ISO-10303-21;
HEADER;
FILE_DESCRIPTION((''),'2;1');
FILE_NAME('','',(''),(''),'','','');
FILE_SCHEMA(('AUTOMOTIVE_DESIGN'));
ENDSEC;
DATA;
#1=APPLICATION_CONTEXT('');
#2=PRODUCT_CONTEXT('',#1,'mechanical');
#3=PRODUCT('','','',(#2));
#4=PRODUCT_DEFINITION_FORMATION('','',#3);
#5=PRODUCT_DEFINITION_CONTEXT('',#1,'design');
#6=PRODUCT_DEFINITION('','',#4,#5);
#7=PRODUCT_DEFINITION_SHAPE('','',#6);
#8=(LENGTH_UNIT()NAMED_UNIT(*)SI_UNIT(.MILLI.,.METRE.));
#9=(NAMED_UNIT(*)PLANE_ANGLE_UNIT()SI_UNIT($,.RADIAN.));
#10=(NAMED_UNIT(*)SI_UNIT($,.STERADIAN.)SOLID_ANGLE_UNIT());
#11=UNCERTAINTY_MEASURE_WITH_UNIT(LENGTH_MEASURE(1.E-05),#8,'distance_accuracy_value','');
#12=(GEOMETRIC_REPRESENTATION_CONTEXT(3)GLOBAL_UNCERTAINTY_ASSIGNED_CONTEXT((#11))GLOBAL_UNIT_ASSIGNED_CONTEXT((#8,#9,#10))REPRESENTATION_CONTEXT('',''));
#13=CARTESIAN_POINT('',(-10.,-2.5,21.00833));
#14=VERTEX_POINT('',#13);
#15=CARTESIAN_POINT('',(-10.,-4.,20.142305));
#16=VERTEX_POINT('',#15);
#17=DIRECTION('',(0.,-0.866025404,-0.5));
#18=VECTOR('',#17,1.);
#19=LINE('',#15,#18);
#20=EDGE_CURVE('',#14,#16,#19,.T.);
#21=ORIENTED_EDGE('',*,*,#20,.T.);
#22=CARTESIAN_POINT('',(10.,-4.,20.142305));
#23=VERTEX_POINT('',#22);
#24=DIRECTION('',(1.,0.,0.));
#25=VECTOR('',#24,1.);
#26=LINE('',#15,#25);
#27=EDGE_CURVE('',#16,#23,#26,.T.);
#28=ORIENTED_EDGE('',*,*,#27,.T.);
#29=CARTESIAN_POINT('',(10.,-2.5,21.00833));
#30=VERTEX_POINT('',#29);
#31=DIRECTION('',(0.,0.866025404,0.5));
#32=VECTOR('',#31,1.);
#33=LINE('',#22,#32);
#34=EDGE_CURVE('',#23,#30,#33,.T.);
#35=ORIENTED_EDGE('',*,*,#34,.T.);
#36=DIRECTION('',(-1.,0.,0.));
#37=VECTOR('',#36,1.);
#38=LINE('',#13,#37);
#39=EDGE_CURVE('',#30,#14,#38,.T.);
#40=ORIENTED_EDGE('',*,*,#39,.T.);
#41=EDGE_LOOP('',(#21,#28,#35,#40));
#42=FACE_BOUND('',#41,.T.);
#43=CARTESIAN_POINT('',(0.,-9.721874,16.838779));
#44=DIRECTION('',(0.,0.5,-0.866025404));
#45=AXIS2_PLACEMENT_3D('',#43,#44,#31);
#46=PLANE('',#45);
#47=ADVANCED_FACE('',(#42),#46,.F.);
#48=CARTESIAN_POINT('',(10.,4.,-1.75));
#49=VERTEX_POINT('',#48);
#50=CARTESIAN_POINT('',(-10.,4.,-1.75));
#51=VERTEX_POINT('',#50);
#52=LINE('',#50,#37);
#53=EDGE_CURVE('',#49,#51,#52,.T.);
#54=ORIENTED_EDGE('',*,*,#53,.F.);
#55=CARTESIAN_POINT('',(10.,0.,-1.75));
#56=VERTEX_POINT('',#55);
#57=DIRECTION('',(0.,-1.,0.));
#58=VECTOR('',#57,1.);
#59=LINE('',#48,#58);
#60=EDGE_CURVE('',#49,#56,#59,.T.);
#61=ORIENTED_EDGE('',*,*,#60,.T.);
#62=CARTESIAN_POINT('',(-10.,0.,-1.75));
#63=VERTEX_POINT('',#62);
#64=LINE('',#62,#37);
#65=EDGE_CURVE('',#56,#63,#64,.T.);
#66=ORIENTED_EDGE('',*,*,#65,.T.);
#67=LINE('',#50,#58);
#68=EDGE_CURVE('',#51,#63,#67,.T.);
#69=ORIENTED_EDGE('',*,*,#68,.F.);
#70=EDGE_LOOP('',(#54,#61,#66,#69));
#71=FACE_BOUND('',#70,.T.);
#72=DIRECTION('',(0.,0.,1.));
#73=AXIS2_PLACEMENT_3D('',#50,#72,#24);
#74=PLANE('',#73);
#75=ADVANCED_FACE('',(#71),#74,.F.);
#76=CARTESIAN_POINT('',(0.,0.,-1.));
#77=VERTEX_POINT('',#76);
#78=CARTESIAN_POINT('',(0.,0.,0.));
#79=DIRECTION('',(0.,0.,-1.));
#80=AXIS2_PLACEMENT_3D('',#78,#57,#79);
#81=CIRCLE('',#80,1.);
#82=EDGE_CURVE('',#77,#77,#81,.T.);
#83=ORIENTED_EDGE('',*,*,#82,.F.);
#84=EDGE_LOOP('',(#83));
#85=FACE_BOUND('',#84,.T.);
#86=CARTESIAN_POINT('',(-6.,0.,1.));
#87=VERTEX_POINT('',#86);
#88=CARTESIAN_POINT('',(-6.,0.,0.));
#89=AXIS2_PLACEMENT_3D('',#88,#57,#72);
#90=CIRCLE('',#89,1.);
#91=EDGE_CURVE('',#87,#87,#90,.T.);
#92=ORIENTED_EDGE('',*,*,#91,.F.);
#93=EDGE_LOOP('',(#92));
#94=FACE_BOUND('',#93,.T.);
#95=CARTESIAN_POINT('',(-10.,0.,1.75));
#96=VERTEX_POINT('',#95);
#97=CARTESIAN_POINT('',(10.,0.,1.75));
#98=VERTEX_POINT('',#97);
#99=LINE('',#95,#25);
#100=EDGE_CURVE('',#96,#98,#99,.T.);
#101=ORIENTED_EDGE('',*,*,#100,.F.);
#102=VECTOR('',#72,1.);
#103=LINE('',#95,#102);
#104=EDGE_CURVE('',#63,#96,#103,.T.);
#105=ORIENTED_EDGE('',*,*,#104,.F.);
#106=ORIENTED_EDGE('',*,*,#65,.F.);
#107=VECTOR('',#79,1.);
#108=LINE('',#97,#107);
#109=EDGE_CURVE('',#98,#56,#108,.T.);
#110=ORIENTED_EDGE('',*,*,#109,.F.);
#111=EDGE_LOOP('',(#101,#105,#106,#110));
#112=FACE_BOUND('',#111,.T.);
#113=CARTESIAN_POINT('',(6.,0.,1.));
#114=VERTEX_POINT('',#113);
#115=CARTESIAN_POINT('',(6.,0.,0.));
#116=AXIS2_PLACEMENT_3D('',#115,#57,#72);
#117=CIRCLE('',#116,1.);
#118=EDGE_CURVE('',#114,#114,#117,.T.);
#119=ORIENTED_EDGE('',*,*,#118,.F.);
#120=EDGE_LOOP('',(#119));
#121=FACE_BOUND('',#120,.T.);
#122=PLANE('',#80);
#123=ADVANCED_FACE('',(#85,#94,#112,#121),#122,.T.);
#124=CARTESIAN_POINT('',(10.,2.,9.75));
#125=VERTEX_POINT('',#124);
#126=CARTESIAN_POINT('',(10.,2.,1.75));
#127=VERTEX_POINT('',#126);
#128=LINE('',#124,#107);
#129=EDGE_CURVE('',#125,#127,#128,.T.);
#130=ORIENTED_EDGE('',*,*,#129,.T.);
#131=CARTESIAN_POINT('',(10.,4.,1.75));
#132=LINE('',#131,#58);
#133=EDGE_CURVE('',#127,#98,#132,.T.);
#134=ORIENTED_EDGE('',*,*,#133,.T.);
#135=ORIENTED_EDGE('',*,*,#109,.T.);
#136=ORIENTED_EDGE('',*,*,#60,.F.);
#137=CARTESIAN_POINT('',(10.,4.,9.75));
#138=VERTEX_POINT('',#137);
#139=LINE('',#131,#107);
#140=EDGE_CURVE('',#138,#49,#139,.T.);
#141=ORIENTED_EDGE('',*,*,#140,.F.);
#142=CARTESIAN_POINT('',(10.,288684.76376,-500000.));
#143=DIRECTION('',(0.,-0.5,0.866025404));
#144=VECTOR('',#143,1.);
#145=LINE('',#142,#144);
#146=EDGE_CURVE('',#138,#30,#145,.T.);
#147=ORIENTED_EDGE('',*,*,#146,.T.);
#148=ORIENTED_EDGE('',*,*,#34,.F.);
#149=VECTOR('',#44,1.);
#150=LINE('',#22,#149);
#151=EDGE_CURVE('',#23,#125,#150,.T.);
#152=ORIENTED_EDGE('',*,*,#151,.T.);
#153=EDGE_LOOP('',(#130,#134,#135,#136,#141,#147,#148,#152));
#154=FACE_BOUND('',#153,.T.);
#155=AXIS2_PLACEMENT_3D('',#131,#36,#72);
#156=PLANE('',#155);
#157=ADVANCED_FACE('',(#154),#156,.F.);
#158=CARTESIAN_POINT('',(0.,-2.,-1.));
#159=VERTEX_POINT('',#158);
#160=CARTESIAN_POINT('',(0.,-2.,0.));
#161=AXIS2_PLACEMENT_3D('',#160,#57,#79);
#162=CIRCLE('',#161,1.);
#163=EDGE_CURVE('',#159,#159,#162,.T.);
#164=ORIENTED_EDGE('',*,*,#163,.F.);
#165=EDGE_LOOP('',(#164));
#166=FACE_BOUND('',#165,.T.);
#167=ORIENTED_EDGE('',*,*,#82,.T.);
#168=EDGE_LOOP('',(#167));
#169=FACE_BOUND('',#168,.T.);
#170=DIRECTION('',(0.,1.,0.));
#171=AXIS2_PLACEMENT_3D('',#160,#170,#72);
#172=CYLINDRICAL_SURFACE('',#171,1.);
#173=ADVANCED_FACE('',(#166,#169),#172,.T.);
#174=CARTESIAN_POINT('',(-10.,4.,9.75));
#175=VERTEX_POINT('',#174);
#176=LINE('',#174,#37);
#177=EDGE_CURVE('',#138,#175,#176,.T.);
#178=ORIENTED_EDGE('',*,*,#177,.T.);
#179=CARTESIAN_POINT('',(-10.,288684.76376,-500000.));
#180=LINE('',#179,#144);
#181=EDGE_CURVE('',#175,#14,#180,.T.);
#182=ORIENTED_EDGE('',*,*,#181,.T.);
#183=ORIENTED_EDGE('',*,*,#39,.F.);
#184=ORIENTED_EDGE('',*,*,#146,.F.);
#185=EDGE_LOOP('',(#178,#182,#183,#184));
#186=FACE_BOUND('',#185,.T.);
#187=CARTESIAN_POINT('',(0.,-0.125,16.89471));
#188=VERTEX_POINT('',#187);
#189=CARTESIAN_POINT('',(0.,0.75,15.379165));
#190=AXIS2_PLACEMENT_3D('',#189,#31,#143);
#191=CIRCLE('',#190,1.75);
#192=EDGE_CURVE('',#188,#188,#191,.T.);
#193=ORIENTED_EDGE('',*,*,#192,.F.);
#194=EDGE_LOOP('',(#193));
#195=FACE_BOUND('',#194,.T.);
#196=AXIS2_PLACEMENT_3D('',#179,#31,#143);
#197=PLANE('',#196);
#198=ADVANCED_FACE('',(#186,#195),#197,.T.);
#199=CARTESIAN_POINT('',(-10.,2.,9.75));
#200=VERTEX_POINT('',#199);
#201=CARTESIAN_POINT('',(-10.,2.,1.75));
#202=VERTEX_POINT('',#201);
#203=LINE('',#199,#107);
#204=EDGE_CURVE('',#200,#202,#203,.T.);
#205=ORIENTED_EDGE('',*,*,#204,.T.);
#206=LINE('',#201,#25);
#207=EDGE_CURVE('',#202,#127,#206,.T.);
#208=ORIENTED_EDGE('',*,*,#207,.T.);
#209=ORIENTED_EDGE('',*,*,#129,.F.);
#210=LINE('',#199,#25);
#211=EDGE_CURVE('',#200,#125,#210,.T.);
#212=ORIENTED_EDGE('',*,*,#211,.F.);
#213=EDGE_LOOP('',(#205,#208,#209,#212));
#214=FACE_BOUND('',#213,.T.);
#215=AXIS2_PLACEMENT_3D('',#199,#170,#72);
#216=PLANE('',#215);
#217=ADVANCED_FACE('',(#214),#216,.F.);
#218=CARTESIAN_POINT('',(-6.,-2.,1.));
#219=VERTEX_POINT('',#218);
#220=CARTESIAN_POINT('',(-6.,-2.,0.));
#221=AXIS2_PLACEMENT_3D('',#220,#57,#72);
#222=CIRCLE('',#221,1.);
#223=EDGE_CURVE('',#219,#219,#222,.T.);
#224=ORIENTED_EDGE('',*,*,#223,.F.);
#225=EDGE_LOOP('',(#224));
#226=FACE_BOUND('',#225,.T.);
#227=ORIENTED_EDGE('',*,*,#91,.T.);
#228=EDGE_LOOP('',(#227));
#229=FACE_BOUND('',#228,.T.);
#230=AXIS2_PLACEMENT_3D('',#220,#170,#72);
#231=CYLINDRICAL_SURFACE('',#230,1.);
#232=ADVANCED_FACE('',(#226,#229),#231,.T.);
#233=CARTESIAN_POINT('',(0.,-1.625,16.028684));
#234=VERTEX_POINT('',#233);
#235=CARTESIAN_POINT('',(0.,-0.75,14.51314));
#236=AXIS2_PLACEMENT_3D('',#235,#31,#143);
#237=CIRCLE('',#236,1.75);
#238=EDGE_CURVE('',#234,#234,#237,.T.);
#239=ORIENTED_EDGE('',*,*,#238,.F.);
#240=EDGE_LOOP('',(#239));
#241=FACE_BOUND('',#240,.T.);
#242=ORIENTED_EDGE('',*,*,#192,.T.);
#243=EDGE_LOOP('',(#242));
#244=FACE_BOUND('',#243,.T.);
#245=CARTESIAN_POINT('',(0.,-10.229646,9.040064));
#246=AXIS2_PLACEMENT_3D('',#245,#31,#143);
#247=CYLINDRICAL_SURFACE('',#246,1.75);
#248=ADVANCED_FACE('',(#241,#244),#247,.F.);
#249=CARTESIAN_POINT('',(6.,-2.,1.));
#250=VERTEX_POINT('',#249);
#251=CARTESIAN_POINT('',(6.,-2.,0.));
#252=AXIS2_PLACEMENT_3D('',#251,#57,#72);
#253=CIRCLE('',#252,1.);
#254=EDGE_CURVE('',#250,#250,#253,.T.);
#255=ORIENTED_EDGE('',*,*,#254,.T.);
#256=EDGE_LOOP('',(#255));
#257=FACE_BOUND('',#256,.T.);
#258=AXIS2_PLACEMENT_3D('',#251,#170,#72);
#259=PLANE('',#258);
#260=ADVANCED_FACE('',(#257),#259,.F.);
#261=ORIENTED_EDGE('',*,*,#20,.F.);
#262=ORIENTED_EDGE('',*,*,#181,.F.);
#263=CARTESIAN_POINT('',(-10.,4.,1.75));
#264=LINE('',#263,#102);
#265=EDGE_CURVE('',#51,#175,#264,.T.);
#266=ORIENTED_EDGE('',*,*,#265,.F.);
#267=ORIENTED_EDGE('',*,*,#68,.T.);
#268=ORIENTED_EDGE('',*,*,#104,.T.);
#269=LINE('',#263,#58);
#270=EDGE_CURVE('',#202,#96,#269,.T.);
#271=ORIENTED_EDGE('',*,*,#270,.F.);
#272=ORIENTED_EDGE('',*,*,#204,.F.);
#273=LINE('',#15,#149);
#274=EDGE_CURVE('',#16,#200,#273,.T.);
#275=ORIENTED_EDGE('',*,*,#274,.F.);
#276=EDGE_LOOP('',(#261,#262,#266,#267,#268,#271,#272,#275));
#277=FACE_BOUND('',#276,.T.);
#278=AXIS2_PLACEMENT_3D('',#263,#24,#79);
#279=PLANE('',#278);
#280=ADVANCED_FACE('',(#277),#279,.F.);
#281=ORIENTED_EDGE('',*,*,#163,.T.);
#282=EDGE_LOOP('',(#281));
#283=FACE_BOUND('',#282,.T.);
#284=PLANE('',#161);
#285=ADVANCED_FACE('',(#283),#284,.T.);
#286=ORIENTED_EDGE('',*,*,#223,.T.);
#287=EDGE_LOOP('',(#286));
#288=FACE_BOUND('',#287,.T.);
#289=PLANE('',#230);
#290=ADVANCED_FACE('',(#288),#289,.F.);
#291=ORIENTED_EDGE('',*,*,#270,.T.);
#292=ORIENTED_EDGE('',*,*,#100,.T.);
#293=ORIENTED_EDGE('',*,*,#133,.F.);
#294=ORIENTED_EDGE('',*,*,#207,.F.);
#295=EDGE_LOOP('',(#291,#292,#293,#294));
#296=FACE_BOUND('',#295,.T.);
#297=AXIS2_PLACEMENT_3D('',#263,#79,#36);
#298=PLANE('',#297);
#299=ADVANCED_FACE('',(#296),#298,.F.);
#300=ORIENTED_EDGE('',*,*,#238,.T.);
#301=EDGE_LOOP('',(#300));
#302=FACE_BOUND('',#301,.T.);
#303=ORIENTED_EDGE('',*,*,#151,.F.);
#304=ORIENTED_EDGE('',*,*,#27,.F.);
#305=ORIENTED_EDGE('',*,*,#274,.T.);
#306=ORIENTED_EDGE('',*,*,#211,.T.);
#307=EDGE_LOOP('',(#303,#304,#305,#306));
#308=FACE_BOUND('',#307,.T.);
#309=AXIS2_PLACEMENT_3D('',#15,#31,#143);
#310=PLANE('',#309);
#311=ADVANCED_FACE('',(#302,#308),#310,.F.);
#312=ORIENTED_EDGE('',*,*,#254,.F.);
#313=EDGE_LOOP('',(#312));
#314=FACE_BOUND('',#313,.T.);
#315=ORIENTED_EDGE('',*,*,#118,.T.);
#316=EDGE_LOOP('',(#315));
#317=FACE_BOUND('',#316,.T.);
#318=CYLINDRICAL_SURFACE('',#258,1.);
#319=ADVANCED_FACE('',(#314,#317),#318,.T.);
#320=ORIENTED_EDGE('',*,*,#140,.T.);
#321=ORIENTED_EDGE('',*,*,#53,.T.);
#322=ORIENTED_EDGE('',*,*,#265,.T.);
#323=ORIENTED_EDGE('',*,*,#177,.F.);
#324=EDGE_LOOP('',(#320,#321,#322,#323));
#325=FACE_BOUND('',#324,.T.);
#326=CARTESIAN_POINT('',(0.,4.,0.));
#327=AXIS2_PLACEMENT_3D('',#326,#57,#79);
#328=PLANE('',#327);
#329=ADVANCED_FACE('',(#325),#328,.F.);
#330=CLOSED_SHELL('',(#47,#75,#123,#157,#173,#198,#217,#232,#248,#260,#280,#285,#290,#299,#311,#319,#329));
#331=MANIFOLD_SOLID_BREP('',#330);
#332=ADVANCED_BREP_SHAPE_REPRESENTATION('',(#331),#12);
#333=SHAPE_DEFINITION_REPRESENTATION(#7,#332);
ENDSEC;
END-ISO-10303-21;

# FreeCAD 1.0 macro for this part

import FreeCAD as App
import Part
import Sketcher

V = App.Vector

doc = App.newDocument("Part")
params = doc.addObject("Spreadsheet::Sheet", "Params")
for row, (alias, value) in enumerate([
    ("sketch1_width", "20 mm"),
    ("sketch1_height", "3.5 mm"),
    ("pad1_length", "4 mm"),
    ("sketch2_diameter", "2 mm"),
    ("pad2_length", "2 mm"),
    ("sketch3_width", "20 mm"),
    ("sketch3_height", "2 mm"),
    ("pad3_length", "8 mm"),
    ("sketch4_width", "20 mm"),
    ("pad4_length", "12 mm"),
    ("sketch5_width", "20 mm"),
    ("sketch6_diameter", "3.5 mm"),
], start=1):
    params.set(f"A{row}", alias)
    params.set(f"B{row}", "=" + value)
    params.setAlias(f"B{row}", alias)

body = doc.addObject("PartDesign::Body", "Body")
body.AllowCompound = True

sketch1 = body.newObject("Sketcher::SketchObject", "Sketch")
sketch1.AttachmentSupport = (doc.getObject("XZ_Plane"), [""])
sketch1.MapMode = "FlatFace"
sketch1.addGeometry([
    Part.LineSegment(V(-10, -1.75, 0), V(-10, 1.75, 0)),
    Part.LineSegment(V(-10, 1.75, 0), V(10, 1.75, 0)),
    Part.LineSegment(V(10, 1.75, 0), V(10, -1.75, 0)),
    Part.LineSegment(V(10, -1.75, 0), V(-10, -1.75, 0)),
], False)
sketch1.addConstraint([
    Sketcher.Constraint("Coincident", 0, 2, 1, 1),
    Sketcher.Constraint("Coincident", 1, 2, 2, 1),
    Sketcher.Constraint("Coincident", 2, 2, 3, 1),
    Sketcher.Constraint("Coincident", 3, 2, 0, 1),
    Sketcher.Constraint("Vertical", 0),
    Sketcher.Constraint("Horizontal", 1),
    Sketcher.Constraint("Vertical", 2),
    Sketcher.Constraint("Horizontal", 3),
    Sketcher.Constraint("Symmetric", 0, 2, 2, 2, -1, 1),
    Sketcher.Constraint("DistanceX", 1, 1, 1, 2, 20.0),
    Sketcher.Constraint("DistanceY", 0, 1, 0, 2, 3.5),
])
sketch1.setExpression("Constraints[9]", "Params.sketch1_width")
sketch1.setExpression("Constraints[10]", "Params.sketch1_height")
pad1 = body.newObject("PartDesign::Pad", "Pad")
pad1.Profile = sketch1
pad1.setExpression("Length", "Params.pad1_length")
pad1.Reversed = True

sketch2 = body.newObject("Sketcher::SketchObject", "Sketch001")
sketch2.AttachmentSupport = (doc.getObject("XZ_Plane"), [""])
sketch2.MapMode = "FlatFace"
sketch2.addGeometry([
    Part.Circle(V(0, 0, 0), V(0, 0, 1), 1),
    Part.Circle(V(-6, 0, 0), V(0, 0, 1), 1),
    Part.Circle(V(6, 0, 0), V(0, 0, 1), 1),
], False)
sketch2.addConstraint([
    Sketcher.Constraint("Coincident", 0, 3, -1, 1),
    Sketcher.Constraint("Equal", 0, 1),
    Sketcher.Constraint("Equal", 1, 2),
    Sketcher.Constraint("Symmetric", 1, 3, 2, 3, -1, 1),
    Sketcher.Constraint("PointOnObject", 1, 3, -1),
    Sketcher.Constraint("Diameter", 0, 2.0),
    Sketcher.Constraint("DistanceX", 1, 3, -1, 1, 6.0),
])
sketch2.setExpression("Constraints[5]", "Params.sketch2_diameter")
pad2 = body.newObject("PartDesign::Pad", "Pad001")
pad2.Profile = sketch2
pad2.setExpression("Length", "Params.pad2_length")

sketch3 = body.newObject("Sketcher::SketchObject", "Sketch002")
sketch3.AttachmentSupport = (doc.getObject("XY_Plane"), [""])
sketch3.MapMode = "FlatFace"
sketch3.AttachmentOffset = App.Placement(V(0, 0, 1.75), App.Rotation())
sketch3.addGeometry([
    Part.LineSegment(V(-10, 4, 0), V(-10, 2, 0)),
    Part.LineSegment(V(-10, 2, 0), V(10, 2, 0)),
    Part.LineSegment(V(10, 2, 0), V(10, 4, 0)),
    Part.LineSegment(V(10, 4, 0), V(-10, 4, 0)),
], False)
sketch3.addConstraint([
    Sketcher.Constraint("Coincident", 0, 2, 1, 1),
    Sketcher.Constraint("Coincident", 1, 2, 2, 1),
    Sketcher.Constraint("Coincident", 2, 2, 3, 1),
    Sketcher.Constraint("Coincident", 3, 2, 0, 1),
    Sketcher.Constraint("Vertical", 0),
    Sketcher.Constraint("Horizontal", 1),
    Sketcher.Constraint("Vertical", 2),
    Sketcher.Constraint("Horizontal", 3),
    Sketcher.Constraint("DistanceX", 1, 1, 1, 2, 20.0),
    Sketcher.Constraint("DistanceY", 0, 2, 0, 1, 2.0),
    Sketcher.Constraint("DistanceX", 0, 2, -1, 1, 10.0),
    Sketcher.Constraint("DistanceY", -1, 1, 0, 2, 2.0),
])
sketch3.setExpression("Constraints[8]", "Params.sketch3_width")
sketch3.setExpression("Constraints[9]", "Params.sketch3_height")
pad3 = body.newObject("PartDesign::Pad", "Pad002")
pad3.Profile = sketch3
pad3.setExpression("Length", "Params.pad3_length")

sketch4 = body.newObject("Sketcher::SketchObject", "Sketch003")
sketch4.Placement = App.Placement(V(0, -3.721874, 6.446475), App.Rotation(V(1, 0, 0), V(0, 0.866025404, 0.5), V(0, -0.5, 0.866025404), "ZXY"))
sketch4.addGeometry([
    Part.LineSegment(V(-10, 8.339102, 0), V(-10, 6.607051, 0)),
    Part.LineSegment(V(-10, 6.607051, 0), V(10, 6.607051, 0)),
    Part.LineSegment(V(10, 6.607051, 0), V(10, 8.339102, 0)),
    Part.LineSegment(V(10, 8.339102, 0), V(-10, 8.339102, 0)),
], False)
sketch4.addConstraint([
    Sketcher.Constraint("Coincident", 0, 2, 1, 1),
    Sketcher.Constraint("Coincident", 1, 2, 2, 1),
    Sketcher.Constraint("Coincident", 2, 2, 3, 1),
    Sketcher.Constraint("Coincident", 3, 2, 0, 1),
    Sketcher.Constraint("Vertical", 0),
    Sketcher.Constraint("Horizontal", 1),
    Sketcher.Constraint("Vertical", 2),
    Sketcher.Constraint("Horizontal", 3),
    Sketcher.Constraint("DistanceX", 1, 1, 1, 2, 20.0),
    Sketcher.Constraint("DistanceX", 0, 2, -1, 1, 10.0),
    Sketcher.Constraint("DistanceY", 0, 2, 0, 1, 1.732051),
    Sketcher.Constraint("DistanceY", -1, 1, 2, 2, 8.339102),
])
sketch4.setExpression("Constraints[8]", "Params.sketch4_width")
pad4 = body.newObject("PartDesign::Pad", "Pad003")
pad4.Profile = sketch4
pad4.setExpression("Length", "Params.pad4_length")

sketch5 = body.newObject("Sketcher::SketchObject", "Sketch004")
sketch5.Placement = App.Placement(V(0, -3.721874, 6.446475), App.Rotation(V(1, 0, 0), V(0, 0.866025404, 0.5), V(0, -0.5, 0.866025404), "ZXY"))
sketch5.addGeometry([
    Part.LineSegment(V(-10, 8.339102, 0), V(-10, 6.607051, 0)),
    Part.LineSegment(V(-10, 6.607051, 0), V(10, 6.607051, 0)),
    Part.LineSegment(V(10, 6.607051, 0), V(10, 8.339102, 0)),
    Part.LineSegment(V(10, 8.339102, 0), V(-10, 8.339102, 0)),
], False)
sketch5.addConstraint([
    Sketcher.Constraint("Coincident", 0, 2, 1, 1),
    Sketcher.Constraint("Coincident", 1, 2, 2, 1),
    Sketcher.Constraint("Coincident", 2, 2, 3, 1),
    Sketcher.Constraint("Coincident", 3, 2, 0, 1),
    Sketcher.Constraint("Vertical", 0),
    Sketcher.Constraint("Horizontal", 1),
    Sketcher.Constraint("Vertical", 2),
    Sketcher.Constraint("Horizontal", 3),
    Sketcher.Constraint("DistanceX", 1, 1, 1, 2, 20.0),
    Sketcher.Constraint("DistanceX", 0, 2, -1, 1, 10.0),
    Sketcher.Constraint("DistanceY", 0, 2, 0, 1, 1.732051),
    Sketcher.Constraint("DistanceY", -1, 1, 2, 2, 8.339102),
])
sketch5.setExpression("Constraints[8]", "Params.sketch5_width")
pad5 = body.newObject("PartDesign::Pad", "Pad004")
pad5.Profile = sketch5
pad5.Type = "UpToFirst"
pad5.Reversed = True

sketch6 = body.newObject("Sketcher::SketchObject", "Sketch005")
sketch6.Placement = App.Placement(V(0, 7.221874, 4.169551), App.Rotation(V(1, 0, 0), V(0, 0.5, -0.866025404), V(0, 0.866025404, 0.5), "ZXY"))
sketch6.addGeometry(Part.Circle(V(0, -12.943748, 0), V(0, 0, 1), 1.75), False)
sketch6.addConstraint([
    Sketcher.Constraint("PointOnObject", 0, 3, -2),
    Sketcher.Constraint("Diameter", 0, 3.5),
    Sketcher.Constraint("DistanceY", 0, 3, -1, 1, 12.943748),
])
sketch6.setExpression("Constraints[1]", "Params.sketch6_diameter")
pocket1 = body.newObject("PartDesign::Pocket", "Pocket")
pocket1.Profile = sketch6
pocket1.Type = "ThroughAll"

doc.recompute()
